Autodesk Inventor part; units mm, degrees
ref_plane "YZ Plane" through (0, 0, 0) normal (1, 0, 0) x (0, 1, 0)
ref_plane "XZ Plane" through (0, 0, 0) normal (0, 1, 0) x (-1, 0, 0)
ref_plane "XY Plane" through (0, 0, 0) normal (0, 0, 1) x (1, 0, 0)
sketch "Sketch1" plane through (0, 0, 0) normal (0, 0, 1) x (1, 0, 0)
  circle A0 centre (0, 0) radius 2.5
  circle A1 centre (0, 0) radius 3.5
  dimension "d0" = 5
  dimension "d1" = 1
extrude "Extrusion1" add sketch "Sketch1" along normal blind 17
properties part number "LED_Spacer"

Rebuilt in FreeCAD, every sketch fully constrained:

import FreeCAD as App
import Part
import Sketcher
Q = App.Units.Quantity

doc = App.newDocument("Part")
body = doc.addObject("PartDesign::Body", "Body")

# Sketch on XY plane
sketch1 = doc.addObject("Sketcher::SketchObject", "Sketch")
body.addObject(sketch1)
sketch1.AttachmentSupport = (doc.XY_Plane, [""])
sketch1.MapMode = "FlatFace"
sketch1.addGeometry(Part.Circle(App.Vector(0, 0, 0), App.Vector(0, 0, 1), 3.5), False)
sketch1.addGeometry(Part.Circle(App.Vector(0, 0, 0), App.Vector(0, 0, 1), 2.5), False)
sketch1.addConstraint(Sketcher.Constraint("Coincident", 0, 3, -1, 1))
sketch1.addConstraint(Sketcher.Constraint("Coincident", 1, 3, -1, 1))
sketch1.addConstraint(Sketcher.Constraint("Diameter", 1, Q("5 mm")))
sketch1.addConstraint(Sketcher.Constraint("Diameter", 0, Q("7 mm")))
pad1 = doc.addObject("PartDesign::Pad", "Pad")
body.addObject(pad1)
pad1.Profile = sketch1
pad1.Length = 17

doc.recompute()
